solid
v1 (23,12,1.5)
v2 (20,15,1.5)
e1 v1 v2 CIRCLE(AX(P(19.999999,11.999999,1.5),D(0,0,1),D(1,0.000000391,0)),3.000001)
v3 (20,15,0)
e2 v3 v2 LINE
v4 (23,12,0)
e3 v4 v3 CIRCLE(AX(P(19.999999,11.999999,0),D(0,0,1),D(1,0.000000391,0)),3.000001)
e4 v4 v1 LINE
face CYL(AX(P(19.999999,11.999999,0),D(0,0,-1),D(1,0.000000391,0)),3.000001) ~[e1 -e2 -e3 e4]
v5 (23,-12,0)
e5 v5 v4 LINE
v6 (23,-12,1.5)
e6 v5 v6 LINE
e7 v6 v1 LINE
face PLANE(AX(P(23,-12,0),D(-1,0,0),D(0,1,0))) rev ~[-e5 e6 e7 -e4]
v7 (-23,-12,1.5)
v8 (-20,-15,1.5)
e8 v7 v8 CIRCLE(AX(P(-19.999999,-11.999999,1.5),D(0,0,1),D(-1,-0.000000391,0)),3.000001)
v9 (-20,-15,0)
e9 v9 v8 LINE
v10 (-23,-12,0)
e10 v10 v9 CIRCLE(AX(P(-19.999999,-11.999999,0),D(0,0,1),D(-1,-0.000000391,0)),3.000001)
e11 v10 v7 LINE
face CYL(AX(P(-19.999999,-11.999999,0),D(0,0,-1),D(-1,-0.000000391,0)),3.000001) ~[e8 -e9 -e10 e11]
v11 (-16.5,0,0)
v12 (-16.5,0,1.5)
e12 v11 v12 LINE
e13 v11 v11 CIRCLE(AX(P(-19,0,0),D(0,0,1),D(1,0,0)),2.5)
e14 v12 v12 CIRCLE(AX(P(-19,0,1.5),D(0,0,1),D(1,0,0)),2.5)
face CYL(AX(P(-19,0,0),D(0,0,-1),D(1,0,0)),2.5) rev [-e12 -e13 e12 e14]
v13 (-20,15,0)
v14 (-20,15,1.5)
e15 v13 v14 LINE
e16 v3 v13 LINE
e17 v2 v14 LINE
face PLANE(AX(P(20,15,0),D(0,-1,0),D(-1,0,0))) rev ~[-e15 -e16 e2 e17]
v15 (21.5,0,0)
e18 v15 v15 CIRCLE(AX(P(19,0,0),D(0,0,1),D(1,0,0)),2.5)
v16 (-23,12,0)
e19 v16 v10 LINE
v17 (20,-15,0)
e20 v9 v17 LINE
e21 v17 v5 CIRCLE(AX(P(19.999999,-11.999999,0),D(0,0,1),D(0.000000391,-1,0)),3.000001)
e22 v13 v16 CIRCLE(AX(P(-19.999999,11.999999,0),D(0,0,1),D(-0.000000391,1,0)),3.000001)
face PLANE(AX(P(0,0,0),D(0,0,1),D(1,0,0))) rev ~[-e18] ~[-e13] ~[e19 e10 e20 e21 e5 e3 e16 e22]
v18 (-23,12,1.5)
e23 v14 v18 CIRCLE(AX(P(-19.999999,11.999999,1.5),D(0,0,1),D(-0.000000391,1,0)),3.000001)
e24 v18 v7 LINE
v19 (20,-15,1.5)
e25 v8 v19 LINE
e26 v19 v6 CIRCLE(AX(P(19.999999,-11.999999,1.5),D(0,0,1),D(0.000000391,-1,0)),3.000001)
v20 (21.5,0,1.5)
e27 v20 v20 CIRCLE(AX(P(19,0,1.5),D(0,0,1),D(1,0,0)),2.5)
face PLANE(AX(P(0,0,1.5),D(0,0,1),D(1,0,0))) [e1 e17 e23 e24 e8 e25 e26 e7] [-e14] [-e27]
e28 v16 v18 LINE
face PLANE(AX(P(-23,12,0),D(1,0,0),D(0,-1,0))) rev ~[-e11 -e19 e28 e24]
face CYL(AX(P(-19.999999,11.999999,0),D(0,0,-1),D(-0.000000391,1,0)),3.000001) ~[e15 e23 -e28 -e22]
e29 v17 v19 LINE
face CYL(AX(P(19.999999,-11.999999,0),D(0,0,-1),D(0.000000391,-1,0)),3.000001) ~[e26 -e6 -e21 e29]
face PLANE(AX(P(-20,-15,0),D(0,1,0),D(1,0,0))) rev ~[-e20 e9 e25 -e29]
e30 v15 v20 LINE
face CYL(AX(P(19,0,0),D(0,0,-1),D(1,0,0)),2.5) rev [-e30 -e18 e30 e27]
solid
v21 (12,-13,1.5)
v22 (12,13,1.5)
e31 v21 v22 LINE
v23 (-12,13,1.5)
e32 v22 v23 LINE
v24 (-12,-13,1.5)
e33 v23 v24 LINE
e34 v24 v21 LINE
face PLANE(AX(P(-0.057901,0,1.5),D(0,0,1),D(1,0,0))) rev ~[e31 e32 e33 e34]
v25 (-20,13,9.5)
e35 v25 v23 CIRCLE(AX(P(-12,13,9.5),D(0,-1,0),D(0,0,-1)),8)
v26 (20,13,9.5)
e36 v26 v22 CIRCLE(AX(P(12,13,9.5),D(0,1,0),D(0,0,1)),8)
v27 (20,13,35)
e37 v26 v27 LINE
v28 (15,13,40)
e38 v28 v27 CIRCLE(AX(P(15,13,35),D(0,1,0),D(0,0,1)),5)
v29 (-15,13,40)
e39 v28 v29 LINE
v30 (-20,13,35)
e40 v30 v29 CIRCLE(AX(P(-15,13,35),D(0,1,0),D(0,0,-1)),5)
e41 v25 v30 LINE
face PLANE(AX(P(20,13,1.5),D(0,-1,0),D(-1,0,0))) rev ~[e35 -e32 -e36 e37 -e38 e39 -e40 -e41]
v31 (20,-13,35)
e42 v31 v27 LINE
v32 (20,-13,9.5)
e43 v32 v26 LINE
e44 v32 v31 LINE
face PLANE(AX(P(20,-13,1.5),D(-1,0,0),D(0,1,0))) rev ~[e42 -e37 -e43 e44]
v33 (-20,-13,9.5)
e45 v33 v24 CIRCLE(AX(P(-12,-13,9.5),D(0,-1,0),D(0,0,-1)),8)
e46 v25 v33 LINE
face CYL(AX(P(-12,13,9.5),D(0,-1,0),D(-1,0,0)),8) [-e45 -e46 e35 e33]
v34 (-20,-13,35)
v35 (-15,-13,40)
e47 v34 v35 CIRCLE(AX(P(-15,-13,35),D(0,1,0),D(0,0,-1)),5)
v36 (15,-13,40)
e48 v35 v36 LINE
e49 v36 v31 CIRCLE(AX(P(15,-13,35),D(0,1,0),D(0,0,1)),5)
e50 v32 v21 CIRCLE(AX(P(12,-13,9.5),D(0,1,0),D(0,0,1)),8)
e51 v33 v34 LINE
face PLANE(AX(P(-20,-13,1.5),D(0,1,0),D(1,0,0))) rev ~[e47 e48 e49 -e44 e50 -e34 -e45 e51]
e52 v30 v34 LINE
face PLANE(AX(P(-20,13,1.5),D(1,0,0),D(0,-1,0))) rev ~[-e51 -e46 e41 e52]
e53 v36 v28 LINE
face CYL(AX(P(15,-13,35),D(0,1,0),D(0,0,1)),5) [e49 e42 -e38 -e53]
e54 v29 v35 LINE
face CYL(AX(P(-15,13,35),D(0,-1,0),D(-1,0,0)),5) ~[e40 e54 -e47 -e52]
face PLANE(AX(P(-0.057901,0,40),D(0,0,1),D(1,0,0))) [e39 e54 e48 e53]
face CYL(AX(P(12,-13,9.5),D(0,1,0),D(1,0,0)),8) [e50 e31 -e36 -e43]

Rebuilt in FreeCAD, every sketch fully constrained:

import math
import FreeCAD as App
import Part
import Sketcher
from FreeCAD import Vector


def edges_at(feature, points):
    """Names of the edges that pass closest to the given points."""
    edges = feature.Shape.Edges
    near = lambda p: min(range(len(edges)), key=lambda i: edges[i].distToShape(Part.Vertex(*p))[0])
    return sorted({f"Edge{near(p) + 1}" for p in points})

doc = App.newDocument("Part")
body = doc.addObject("PartDesign::Body", "Body")

# Sketch on XY plane
sketch1 = body.newObject("Sketcher::SketchObject", "Sketch")
sketch1.AttachmentSupport = (doc.getObject("XY_Plane"), [""])
sketch1.MapMode = "FlatFace"
sketch1.addGeometry([
    Part.LineSegment(Vector(-20, -15, 0), Vector(20, -15, 0)),  # 0
    Part.ArcOfCircle(Part.Circle(Vector(19.999999, -11.999999, 0), Vector(0, 0, 1), 3.000001), math.radians(-89.999978), math.radians(-0.000022)),  # 1
    Part.LineSegment(Vector(23, -12, 0), Vector(23, 12, 0)),  # 2
    Part.ArcOfCircle(Part.Circle(Vector(19.999999, 11.999999, 0), Vector(0, 0, 1), 3.000001), math.radians(0.000022), math.radians(89.999978)),  # 3
    Part.LineSegment(Vector(20, 15, 0), Vector(-20, 15, 0)),  # 4
    Part.ArcOfCircle(Part.Circle(Vector(-19.999999, 11.999999, 0), Vector(0, 0, 1), 3.000001), math.radians(90.000022), math.radians(179.999978)),  # 5
    Part.LineSegment(Vector(-23, 12, 0), Vector(-23, -12, 0)),  # 6
    Part.ArcOfCircle(Part.Circle(Vector(-19.999999, -11.999999, 0), Vector(0, 0, 1), 3.000001), math.radians(-179.999978), math.radians(-90.000022)),  # 7
    Part.Circle(Vector(-19, 0, 0), Vector(0, 0, 1), 2.5),  # 8
    Part.Circle(Vector(19, 0, 0), Vector(0, 0, 1), 2.5),  # 9
], False)
sketch1.addConstraint([
    Sketcher.Constraint("Tangent", 0, 2, 1, 1),
    Sketcher.Constraint("Tangent", 1, 2, 2, 1),
    Sketcher.Constraint("Tangent", 2, 2, 3, 1),
    Sketcher.Constraint("Tangent", 3, 2, 4, 1),
    Sketcher.Constraint("Tangent", 4, 2, 5, 1),
    Sketcher.Constraint("Tangent", 5, 2, 6, 1),
    Sketcher.Constraint("Tangent", 6, 2, 7, 1),
    Sketcher.Constraint("Tangent", 7, 2, 0, 1),
    Sketcher.Constraint("Horizontal", 0),
    Sketcher.Constraint("Vertical", 2),
    Sketcher.Constraint("Horizontal", 4),
    Sketcher.Constraint("Vertical", 6),
    Sketcher.Constraint("Equal", 1, 3),
    Sketcher.Constraint("Equal", 3, 5),
    Sketcher.Constraint("Equal", 5, 7),
    Sketcher.Constraint("Equal", 8, 9),
    Sketcher.Constraint("Symmetric", 1, 3, 5, 3, -1, 1),
    Sketcher.Constraint("Symmetric", 8, 3, 9, 3, -1, 1),
    Sketcher.Constraint("PointOnObject", 8, 3, -1),
    Sketcher.Constraint("Diameter", 8, 5.0),
    Sketcher.Constraint("Radius", 1, 3.000001),
    Sketcher.Constraint("DistanceX", 0, 1, 0, 2, 40.0),
    Sketcher.Constraint("DistanceY", 2, 1, 2, 2, 24.0),
    Sketcher.Constraint("DistanceX", 8, 3, -1, 1, 19.0),
])
pad1 = body.newObject("PartDesign::Pad", "Pad")
pad1.Profile = sketch1
pad1.Length = 1.5
body2 = doc.addObject("PartDesign::Body", "Body001")

# Sketch on XY plane
sketch2 = body2.newObject("Sketcher::SketchObject", "Sketch001")
sketch2.AttachmentSupport = (doc.getObject("XY_Plane001"), [""])
sketch2.MapMode = "FlatFace"
sketch2.AttachmentOffset = App.Placement(Vector(0, 0, 1.5), App.Rotation())
sketch2.addGeometry([
    Part.LineSegment(Vector(-20, -13, 0), Vector(20, -13, 0)),
    Part.LineSegment(Vector(20, -13, 0), Vector(20, 13, 0)),
    Part.LineSegment(Vector(20, 13, 0), Vector(-20, 13, 0)),
    Part.LineSegment(Vector(-20, 13, 0), Vector(-20, -13, 0)),
], False)
sketch2.addConstraint([
    Sketcher.Constraint("Coincident", 0, 2, 1, 1),
    Sketcher.Constraint("Coincident", 1, 2, 2, 1),
    Sketcher.Constraint("Coincident", 2, 2, 3, 1),
    Sketcher.Constraint("Coincident", 3, 2, 0, 1),
    Sketcher.Constraint("Horizontal", 0),
    Sketcher.Constraint("Vertical", 1),
    Sketcher.Constraint("Horizontal", 2),
    Sketcher.Constraint("Vertical", 3),
    Sketcher.Constraint("Symmetric", 0, 2, 2, 2, -1, 1),
    Sketcher.Constraint("DistanceX", 0, 1, 0, 2, 40.0),
    Sketcher.Constraint("DistanceY", 1, 1, 1, 2, 26.0),
])
pad2 = body2.newObject("PartDesign::Pad", "Pad001")
pad2.Profile = sketch2
pad2.Length = 38.5
doc.recompute()

fillet = body2.newObject("PartDesign::Fillet", "Fillet")
fillet.Base = (pad2, edges_at(pad2, [(-20, 0, 1.5), (20, 0, 1.5)]))
fillet.Radius = 8
doc.recompute()

fillet2 = body2.newObject("PartDesign::Fillet", "Fillet001")
fillet2.Base = (fillet, edges_at(fillet, [(-20, 0, 40), (20, 0, 40)]))
fillet2.Radius = 5

doc.recompute()
